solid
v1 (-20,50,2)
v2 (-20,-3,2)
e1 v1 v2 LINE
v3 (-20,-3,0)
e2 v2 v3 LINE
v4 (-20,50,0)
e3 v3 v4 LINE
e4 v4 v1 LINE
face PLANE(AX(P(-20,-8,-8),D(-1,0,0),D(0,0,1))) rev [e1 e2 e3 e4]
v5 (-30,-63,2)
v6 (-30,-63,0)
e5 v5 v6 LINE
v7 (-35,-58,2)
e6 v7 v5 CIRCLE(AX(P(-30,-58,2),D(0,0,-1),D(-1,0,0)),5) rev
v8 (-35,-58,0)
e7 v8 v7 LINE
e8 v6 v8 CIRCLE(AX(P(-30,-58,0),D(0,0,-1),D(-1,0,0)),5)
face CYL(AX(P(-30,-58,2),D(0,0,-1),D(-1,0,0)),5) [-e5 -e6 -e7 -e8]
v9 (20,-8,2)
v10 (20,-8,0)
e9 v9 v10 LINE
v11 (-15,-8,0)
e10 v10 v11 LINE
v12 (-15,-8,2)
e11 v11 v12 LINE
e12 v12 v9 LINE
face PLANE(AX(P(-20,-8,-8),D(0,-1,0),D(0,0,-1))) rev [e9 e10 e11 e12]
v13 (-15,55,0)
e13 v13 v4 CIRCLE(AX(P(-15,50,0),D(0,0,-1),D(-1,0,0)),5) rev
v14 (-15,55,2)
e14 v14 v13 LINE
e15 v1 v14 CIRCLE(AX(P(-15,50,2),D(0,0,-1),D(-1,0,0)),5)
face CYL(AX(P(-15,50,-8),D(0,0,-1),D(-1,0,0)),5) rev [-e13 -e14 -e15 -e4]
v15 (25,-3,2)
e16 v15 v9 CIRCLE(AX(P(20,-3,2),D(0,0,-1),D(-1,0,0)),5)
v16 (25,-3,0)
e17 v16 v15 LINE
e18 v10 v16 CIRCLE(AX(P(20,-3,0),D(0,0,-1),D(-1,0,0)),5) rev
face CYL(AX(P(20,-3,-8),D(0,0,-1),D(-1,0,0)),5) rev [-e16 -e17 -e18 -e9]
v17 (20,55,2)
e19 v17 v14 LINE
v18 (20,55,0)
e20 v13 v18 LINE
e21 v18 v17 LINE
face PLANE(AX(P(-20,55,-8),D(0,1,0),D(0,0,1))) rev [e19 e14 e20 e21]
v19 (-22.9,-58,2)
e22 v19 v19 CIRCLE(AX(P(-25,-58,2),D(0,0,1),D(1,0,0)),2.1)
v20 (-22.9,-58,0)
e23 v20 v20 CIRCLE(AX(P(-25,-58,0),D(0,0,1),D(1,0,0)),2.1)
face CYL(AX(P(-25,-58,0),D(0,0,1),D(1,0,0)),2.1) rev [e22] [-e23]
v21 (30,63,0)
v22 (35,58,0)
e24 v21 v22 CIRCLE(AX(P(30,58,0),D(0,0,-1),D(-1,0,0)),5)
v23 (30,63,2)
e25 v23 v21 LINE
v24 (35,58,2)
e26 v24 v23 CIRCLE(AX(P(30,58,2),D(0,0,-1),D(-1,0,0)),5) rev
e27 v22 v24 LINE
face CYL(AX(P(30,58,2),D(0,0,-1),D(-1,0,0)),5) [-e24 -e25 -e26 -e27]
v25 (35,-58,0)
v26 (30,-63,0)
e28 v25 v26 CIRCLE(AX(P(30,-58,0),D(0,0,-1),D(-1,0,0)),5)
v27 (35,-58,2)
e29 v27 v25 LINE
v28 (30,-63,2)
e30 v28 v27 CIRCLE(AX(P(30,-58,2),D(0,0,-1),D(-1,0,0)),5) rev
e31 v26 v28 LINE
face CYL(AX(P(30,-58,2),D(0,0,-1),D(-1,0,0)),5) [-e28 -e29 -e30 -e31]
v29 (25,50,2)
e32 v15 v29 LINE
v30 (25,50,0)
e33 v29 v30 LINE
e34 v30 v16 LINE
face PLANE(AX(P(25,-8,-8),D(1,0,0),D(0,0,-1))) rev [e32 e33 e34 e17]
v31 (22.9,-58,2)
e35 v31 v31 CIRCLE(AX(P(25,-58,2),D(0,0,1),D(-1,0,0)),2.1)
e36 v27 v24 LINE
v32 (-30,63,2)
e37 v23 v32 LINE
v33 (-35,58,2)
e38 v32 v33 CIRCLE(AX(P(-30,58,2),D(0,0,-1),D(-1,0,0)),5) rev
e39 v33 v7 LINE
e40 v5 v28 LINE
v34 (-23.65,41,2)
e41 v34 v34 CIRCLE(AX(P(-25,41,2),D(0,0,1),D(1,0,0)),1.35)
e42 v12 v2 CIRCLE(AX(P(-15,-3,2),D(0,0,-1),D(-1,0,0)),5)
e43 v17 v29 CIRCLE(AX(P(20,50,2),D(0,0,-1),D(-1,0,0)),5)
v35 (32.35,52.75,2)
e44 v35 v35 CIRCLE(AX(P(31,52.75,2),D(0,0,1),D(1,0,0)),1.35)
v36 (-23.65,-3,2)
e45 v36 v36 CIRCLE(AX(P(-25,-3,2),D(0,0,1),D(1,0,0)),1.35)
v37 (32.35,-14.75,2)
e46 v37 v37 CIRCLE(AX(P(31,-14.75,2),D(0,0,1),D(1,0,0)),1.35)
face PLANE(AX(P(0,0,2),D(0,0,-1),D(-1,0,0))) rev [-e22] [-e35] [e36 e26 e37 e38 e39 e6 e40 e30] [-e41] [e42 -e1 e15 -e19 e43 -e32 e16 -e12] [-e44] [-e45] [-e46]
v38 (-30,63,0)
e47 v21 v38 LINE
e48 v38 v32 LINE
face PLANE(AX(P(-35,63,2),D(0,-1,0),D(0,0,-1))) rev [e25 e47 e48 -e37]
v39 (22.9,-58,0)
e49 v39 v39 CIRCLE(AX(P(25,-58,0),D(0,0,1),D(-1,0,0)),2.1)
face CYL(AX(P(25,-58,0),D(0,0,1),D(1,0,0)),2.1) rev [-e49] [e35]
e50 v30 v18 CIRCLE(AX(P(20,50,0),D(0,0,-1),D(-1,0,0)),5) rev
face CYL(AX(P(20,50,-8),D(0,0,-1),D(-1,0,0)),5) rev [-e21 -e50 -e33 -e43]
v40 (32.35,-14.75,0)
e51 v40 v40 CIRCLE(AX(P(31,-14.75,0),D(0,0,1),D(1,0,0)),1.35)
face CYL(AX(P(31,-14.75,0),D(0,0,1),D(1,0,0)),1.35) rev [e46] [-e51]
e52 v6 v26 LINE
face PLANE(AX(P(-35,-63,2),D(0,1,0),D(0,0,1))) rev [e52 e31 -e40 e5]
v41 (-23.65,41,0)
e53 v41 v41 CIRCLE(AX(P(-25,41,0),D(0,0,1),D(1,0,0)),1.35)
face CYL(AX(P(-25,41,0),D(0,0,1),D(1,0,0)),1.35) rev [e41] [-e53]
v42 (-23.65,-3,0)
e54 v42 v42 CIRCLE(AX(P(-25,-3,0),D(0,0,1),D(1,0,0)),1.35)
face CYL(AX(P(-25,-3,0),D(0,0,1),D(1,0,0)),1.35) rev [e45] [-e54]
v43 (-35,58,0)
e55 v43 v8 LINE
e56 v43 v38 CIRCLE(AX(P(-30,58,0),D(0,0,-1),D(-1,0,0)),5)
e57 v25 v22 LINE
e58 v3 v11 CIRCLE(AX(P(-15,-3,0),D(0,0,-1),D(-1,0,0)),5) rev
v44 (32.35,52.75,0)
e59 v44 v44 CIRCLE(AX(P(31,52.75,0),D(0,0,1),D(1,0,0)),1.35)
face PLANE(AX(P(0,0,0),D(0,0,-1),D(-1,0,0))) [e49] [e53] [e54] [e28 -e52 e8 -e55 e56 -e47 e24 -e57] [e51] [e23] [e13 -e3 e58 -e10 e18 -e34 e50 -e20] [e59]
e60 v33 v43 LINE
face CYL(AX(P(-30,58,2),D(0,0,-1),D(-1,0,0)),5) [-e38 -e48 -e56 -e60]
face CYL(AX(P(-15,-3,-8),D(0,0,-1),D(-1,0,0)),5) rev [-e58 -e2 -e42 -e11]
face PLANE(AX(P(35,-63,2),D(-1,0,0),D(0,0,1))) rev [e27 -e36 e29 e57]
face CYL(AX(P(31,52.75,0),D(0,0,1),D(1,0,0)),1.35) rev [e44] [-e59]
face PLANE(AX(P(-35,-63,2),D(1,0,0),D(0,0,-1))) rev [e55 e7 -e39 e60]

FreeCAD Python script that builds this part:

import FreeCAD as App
import Part
import Sketcher
Q = App.Units.Quantity


def edges_at(feature, points):
    """Names of the edges that pass closest to the given points."""
    edges = feature.Shape.Edges
    near = lambda p: min(range(len(edges)), key=lambda i: edges[i].distToShape(Part.Vertex(*p))[0])
    return sorted({f"Edge{near(p) + 1}" for p in points})


def add_polygon(sketch, points):
    """Adds a closed chain of lines whose ends are joined by coincident constraints."""
    first, n = sketch.GeometryCount, len(points)
    for a, b in zip(points, points[1:] + points[:1]):
        sketch.addGeometry(Part.LineSegment(App.Vector(*a, 0), App.Vector(*b, 0)), False)
    for i in range(n):
        sketch.addConstraint(Sketcher.Constraint("Coincident", first + i, 2, first + (i + 1) % n, 1))

doc = App.newDocument("Part")
body = doc.addObject("PartDesign::Body", "Body")

# Sketch on XY plane
sketch1 = body.newObject("Sketcher::SketchObject", "Sketch")
sketch1.AttachmentSupport = (doc.getObject("XY_Plane"), [""])
sketch1.MapMode = "FlatFace"
add_polygon(sketch1, [(-35, 63), (-35, -63), (35, -63), (35, 63)])  # lines 0-3
sketch1.addConstraint([
    Sketcher.Constraint("Vertical", 0),
    Sketcher.Constraint("Horizontal", 1),
    Sketcher.Constraint("Vertical", 2),
    Sketcher.Constraint("Horizontal", 3),
    Sketcher.Constraint("Symmetric", 0, 2, 2, 2, -1, 1),
    Sketcher.Constraint("DistanceX", 1, 1, 1, 2, Q("70 mm")),
    Sketcher.Constraint("DistanceY", 0, 2, 0, 1, Q("126 mm")),
])
pad1 = body.newObject("PartDesign::Pad", "Pad")
pad1.Profile = sketch1
pad1.Length = 2
doc.recompute()

fillet = body.newObject("PartDesign::Fillet", "Fillet")
fillet.Base = (pad1, edges_at(pad1, [
    (35, -63, 1),
    (-35, -63, 1),
    (-35, 63, 1),
    (35, 63, 1),
]))
fillet.Radius = 5

# Sketch on XY plane
sketch2 = body.newObject("Sketcher::SketchObject", "Sketch001")
sketch2.AttachmentSupport = (doc.getObject("XY_Plane"), [""])
sketch2.MapMode = "FlatFace"
sketch2.AttachmentOffset = App.Placement(App.Vector(0, 0, 2), App.Rotation())
sketch2.addGeometry([
    Part.Circle(App.Vector(-25, -58, 0), App.Vector(0, 0, 1), 2.1),  # 0
    Part.Circle(App.Vector(25, -58, 0), App.Vector(0, 0, 1), 2.1),  # 1
    Part.Circle(App.Vector(-25, -3, 0), App.Vector(0, 0, 1), 1.4),  # 2
    Part.Circle(App.Vector(-25, 41, 0), App.Vector(0, 0, 1), 1.4),  # 3
    Part.Circle(App.Vector(31, 52.8, 0), App.Vector(0, 0, 1), 1.4),  # 4
    Part.Circle(App.Vector(31, -14.8, 0), App.Vector(0, 0, 1), 1.4),  # 5
], False)
sketch2.addConstraint([
    Sketcher.Constraint("Equal", 0, 1),
    Sketcher.Constraint("Equal", 2, 3),
    Sketcher.Constraint("Equal", 3, 4),
    Sketcher.Constraint("Equal", 4, 5),
    Sketcher.Constraint("Symmetric", 0, 3, 1, 3, -2),
    Sketcher.Constraint("Vertical", 0, 3, 2, 3),
    Sketcher.Constraint("Vertical", 2, 3, 3, 3),
    Sketcher.Constraint("Vertical", 4, 3, 5, 3),
    Sketcher.Constraint("Diameter", 0, Q("4.2 mm")),
    Sketcher.Constraint("Diameter", 2, Q("2.7 mm")),
    Sketcher.Constraint("DistanceX", 0, 3, -1, 1, Q("25 mm")),
    Sketcher.Constraint("DistanceY", 0, 3, -1, 1, Q("58 mm")),
    Sketcher.Constraint("DistanceY", 2, 3, -1, 1, Q("3 mm")),
    Sketcher.Constraint("DistanceY", -1, 1, 3, 3, Q("41 mm")),
    Sketcher.Constraint("DistanceX", -1, 1, 4, 3, Q("31 mm")),
    Sketcher.Constraint("DistanceY", 5, 3, 4, 3, Q("67.5 mm")),
    Sketcher.Constraint("DistanceY", -1, 1, 4, 3, Q("52.75 mm")),
])
pocket1 = body.newObject("PartDesign::Pocket", "Pocket")
pocket1.Profile = sketch2
pocket1.Type = "ThroughAll"

# Sketch on XY plane
sketch3 = body.newObject("Sketcher::SketchObject", "Sketch002")
sketch3.AttachmentSupport = (doc.getObject("XY_Plane"), [""])
sketch3.MapMode = "FlatFace"
sketch3.AttachmentOffset = App.Placement(App.Vector(0, 0, 2), App.Rotation())
add_polygon(sketch3, [(-20, 55), (-20, -8), (25, -8), (25, 55)])  # lines 0-3
sketch3.addConstraint([
    Sketcher.Constraint("Vertical", 0),
    Sketcher.Constraint("Horizontal", 1),
    Sketcher.Constraint("Vertical", 2),
    Sketcher.Constraint("Horizontal", 3),
    Sketcher.Constraint("DistanceX", 1, 1, 1, 2, Q("45 mm")),
    Sketcher.Constraint("DistanceY", 0, 2, 0, 1, Q("63 mm")),
    Sketcher.Constraint("DistanceX", 0, 2, -1, 1, Q("20 mm")),
    Sketcher.Constraint("DistanceY", 0, 2, -1, 1, Q("8 mm")),
])
pocket2 = body.newObject("PartDesign::Pocket", "Pocket001")
pocket2.Profile = sketch3
pocket2.Length = 10
doc.recompute()

fillet2 = body.newObject("PartDesign::Fillet", "Fillet001")
fillet2.Base = (pocket2, edges_at(pocket2, [
    (25, 55, 1),
    (25, -8, 1),
    (-20, -8, 1),
    (-20, 55, 1),
]))
fillet2.Radius = 5

doc.recompute()
